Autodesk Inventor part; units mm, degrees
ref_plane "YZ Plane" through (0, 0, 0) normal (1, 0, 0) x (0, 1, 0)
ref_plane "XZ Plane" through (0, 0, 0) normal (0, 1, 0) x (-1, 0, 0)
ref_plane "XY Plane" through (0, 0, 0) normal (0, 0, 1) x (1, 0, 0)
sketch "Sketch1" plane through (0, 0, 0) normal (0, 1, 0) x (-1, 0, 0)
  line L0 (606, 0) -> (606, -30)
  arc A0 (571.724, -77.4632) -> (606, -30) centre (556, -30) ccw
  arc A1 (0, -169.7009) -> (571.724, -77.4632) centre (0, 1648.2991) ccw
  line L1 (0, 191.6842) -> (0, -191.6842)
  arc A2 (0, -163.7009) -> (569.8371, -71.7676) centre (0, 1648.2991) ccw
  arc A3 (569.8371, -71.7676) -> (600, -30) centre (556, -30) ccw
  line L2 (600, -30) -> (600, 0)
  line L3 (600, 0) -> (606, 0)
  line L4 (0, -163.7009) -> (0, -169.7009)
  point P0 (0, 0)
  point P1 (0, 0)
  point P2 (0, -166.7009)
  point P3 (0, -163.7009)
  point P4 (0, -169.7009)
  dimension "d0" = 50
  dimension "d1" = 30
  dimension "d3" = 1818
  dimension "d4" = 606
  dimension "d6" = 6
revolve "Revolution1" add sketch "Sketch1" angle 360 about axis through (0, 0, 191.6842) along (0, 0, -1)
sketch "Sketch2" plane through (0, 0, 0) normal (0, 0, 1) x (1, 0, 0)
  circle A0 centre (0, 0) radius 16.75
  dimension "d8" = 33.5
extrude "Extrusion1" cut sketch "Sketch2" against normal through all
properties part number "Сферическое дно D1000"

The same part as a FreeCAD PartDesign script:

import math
import FreeCAD as App
import Part
import Sketcher

V = App.Vector

doc = App.newDocument("Part")
body = doc.addObject("PartDesign::Body", "Body")

# Sketch on XZ plane
sketch1 = body.newObject("Sketcher::SketchObject", "Sketch")
sketch1.AttachmentSupport = (doc.getObject("XZ_Plane"), [""])
sketch1.MapMode = "FlatFace"
sketch1.addGeometry([
    Part.LineSegment(V(-606, -30, 0), V(-606, 0, 0)),  # 0
    Part.LineSegment(V(-606, 0, 0), V(-600, 0, 0)),  # 1
    Part.LineSegment(V(-600, 0, 0), V(-600, -30, 0)),  # 2
    Part.ArcOfCircle(Part.Circle(V(-556, -30, 0), V(0, 0, 1), 44), math.radians(180), math.radians(252)),  # 3
    Part.ArcOfCircle(Part.Circle(V(0, 1648, 0), V(0, 0, 1), 1812), math.radians(-108.33), math.radians(-90)),  # 4
    Part.LineSegment(V(0, -164, 0), V(0, -170, 0)),  # 5
    Part.ArcOfCircle(Part.Circle(V(0, 1648, 0), V(0, 0, 1), 1818), math.radians(-108.33), math.radians(-90)),  # 6
    Part.ArcOfCircle(Part.Circle(V(-556, -30, 0), V(0, 0, 1), 50), math.radians(180), math.radians(252)),  # 7
], False)
sketch1.addConstraint([
    Sketcher.Constraint("Coincident", 0, 2, 1, 1),
    Sketcher.Constraint("Coincident", 1, 2, 2, 1),
    Sketcher.Constraint("Tangent", 2, 2, 3, 1),
    Sketcher.Constraint("Tangent", 3, 2, 4, 1),
    Sketcher.Constraint("Coincident", 4, 2, 5, 1),
    Sketcher.Constraint("Coincident", 5, 2, 6, 2),
    Sketcher.Constraint("Tangent", 6, 1, 7, 2),
    Sketcher.Constraint("Tangent", 7, 1, 0, 1),
    Sketcher.Constraint("Vertical", 0),
    Sketcher.Constraint("Horizontal", 1),
    Sketcher.Constraint("Vertical", 2),
    Sketcher.Constraint("Vertical", 5),
    Sketcher.Constraint("Coincident", 7, 3, 3, 3),
    Sketcher.Constraint("PointOnObject", 4, 3, -2),
    Sketcher.Constraint("PointOnObject", 6, 3, -2),
    Sketcher.Constraint("PointOnObject", 0, 2, -1),
    Sketcher.Constraint("PointOnObject", 5, 2, -2),
    Sketcher.Constraint("Equal", 1, 5),
    Sketcher.Constraint("Radius", 7, 50.0),
    Sketcher.Constraint("DistanceX", 1, 1, 1, 2, 6.0),
    Sketcher.Constraint("DistanceY", 0, 1, 0, 2, 30.0),
    Sketcher.Constraint("DistanceX", 0, 2, -1, 1, 606.0),
    Sketcher.Constraint("Radius", 4, 1811.9975),
])
revolution = body.newObject("PartDesign::Revolution", "Revolution")
revolution.Profile = sketch1
revolution.ReferenceAxis = (sketch1, ["V_Axis"])
revolution.Angle = 360

# Sketch on XY plane
sketch2 = body.newObject("Sketcher::SketchObject", "Sketch001")
sketch2.AttachmentSupport = (doc.getObject("XY_Plane"), [""])
sketch2.MapMode = "FlatFace"
sketch2.addGeometry(Part.Circle(V(0, 0, 0), V(0, 0, 1), 17), False)
sketch2.addConstraint([
    Sketcher.Constraint("Coincident", 0, 3, -1, 1),
    Sketcher.Constraint("Diameter", 0, 33.5),
])
pocket1 = body.newObject("PartDesign::Pocket", "Pocket")
pocket1.Profile = sketch2
pocket1.Type = "ThroughAll"

doc.recompute()
